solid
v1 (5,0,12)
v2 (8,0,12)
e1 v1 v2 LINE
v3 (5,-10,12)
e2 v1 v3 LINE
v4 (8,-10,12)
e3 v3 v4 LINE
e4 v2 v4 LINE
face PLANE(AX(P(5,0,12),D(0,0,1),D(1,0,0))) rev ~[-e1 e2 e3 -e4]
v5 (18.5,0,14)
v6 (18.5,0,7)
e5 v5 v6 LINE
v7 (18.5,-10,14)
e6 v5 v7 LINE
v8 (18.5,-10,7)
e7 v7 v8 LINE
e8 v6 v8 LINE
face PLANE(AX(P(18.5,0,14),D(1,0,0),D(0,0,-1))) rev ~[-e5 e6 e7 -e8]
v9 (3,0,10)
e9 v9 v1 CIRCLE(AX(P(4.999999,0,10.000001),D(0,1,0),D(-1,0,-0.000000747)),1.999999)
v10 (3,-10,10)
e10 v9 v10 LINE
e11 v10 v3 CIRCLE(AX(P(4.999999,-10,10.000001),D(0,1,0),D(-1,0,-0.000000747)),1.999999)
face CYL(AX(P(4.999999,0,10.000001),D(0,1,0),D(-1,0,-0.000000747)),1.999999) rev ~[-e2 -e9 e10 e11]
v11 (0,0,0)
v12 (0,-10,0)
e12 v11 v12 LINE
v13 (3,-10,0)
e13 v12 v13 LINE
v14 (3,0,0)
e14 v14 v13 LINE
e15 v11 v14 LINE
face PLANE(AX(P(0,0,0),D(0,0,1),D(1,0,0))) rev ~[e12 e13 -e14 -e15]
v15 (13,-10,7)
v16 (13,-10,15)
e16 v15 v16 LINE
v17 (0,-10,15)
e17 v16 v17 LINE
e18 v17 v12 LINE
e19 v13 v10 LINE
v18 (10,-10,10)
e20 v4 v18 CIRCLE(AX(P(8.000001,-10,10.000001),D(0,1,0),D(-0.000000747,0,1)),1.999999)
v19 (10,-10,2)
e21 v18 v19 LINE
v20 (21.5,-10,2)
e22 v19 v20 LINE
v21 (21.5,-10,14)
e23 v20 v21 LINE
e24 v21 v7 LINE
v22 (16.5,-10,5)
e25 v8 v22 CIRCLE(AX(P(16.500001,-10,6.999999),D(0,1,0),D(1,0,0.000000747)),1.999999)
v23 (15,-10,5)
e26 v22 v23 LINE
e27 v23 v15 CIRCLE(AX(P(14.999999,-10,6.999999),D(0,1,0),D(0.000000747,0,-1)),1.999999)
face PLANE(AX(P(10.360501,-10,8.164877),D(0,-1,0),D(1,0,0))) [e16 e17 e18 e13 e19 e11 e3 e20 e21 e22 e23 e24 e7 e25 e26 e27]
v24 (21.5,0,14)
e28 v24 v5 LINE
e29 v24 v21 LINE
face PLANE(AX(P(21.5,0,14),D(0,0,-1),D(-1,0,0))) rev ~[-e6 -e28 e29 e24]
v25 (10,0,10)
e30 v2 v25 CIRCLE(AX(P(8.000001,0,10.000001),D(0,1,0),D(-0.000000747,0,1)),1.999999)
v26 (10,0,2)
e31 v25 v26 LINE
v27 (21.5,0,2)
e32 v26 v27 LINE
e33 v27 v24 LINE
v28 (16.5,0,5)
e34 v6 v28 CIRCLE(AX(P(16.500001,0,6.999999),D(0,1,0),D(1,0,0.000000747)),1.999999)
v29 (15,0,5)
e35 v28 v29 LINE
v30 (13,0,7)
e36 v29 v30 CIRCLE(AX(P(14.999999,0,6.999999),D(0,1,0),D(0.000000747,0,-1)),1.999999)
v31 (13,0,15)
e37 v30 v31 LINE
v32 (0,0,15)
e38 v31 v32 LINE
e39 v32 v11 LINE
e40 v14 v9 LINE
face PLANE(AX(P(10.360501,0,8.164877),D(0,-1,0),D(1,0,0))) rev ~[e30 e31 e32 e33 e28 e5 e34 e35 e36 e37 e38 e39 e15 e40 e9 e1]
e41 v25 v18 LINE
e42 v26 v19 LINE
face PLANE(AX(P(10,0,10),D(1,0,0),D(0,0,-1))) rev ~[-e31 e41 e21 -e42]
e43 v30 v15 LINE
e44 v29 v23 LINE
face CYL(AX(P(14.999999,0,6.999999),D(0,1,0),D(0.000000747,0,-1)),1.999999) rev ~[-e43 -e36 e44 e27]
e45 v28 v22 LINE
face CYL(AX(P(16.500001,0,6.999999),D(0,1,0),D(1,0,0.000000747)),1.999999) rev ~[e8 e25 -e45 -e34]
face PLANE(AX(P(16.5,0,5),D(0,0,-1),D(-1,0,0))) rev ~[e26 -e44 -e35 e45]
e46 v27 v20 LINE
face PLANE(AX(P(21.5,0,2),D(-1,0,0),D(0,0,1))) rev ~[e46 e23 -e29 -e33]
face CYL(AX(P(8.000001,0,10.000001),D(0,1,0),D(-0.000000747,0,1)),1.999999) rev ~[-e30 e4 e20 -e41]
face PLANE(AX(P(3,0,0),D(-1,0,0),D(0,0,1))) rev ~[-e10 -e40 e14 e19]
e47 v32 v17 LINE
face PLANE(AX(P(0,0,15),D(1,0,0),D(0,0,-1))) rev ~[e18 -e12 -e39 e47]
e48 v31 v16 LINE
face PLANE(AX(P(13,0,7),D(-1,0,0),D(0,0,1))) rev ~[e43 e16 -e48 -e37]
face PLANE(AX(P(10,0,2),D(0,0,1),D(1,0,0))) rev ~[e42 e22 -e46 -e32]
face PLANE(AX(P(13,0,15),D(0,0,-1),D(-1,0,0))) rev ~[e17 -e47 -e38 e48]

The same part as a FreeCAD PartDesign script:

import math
import FreeCAD as App
import Part
import Sketcher
from FreeCAD import Vector

doc = App.newDocument("Part")
body = doc.addObject("PartDesign::Body", "Body")

sketch1 = body.newObject("Sketcher::SketchObject", "Sketch")
sketch1.AttachmentSupport = (doc.getObject("XZ_Plane"), [""])
sketch1.MapMode = "FlatFace"
sketch1.addGeometry(Part.LineSegment(Vector(0, 15, 0), Vector(0, 0, 0)), False)
sketch1.addGeometry(Part.LineSegment(Vector(0, 0, 0), Vector(3, 0, 0)), False)
sketch1.addGeometry(Part.LineSegment(Vector(3, 0, 0), Vector(3, 10, 0)), False)
sketch1.addGeometry(Part.ArcOfCircle(Part.Circle(Vector(4.999999, 10.000001, 0), Vector(0, 0, 1), 1.999999), math.radians(89.999957), math.radians(180.000043)), False)
sketch1.addGeometry(Part.LineSegment(Vector(5, 12, 0), Vector(8, 12, 0)), False)
sketch1.addGeometry(Part.ArcOfCircle(Part.Circle(Vector(8.000001, 10.000001, 0), Vector(0, 0, 1), 1.999999), math.radians(-0.000043), math.radians(90.000043)), False)
sketch1.addGeometry(Part.LineSegment(Vector(10, 10, 0), Vector(10, 2, 0)), False)
sketch1.addGeometry(Part.LineSegment(Vector(10, 2, 0), Vector(21.5, 2, 0)), False)
sketch1.addGeometry(Part.LineSegment(Vector(21.5, 2, 0), Vector(21.5, 14, 0)), False)
sketch1.addGeometry(Part.LineSegment(Vector(21.5, 14, 0), Vector(18.5, 14, 0)), False)
sketch1.addGeometry(Part.LineSegment(Vector(18.5, 14, 0), Vector(18.5, 7, 0)), False)
sketch1.addGeometry(Part.ArcOfCircle(Part.Circle(Vector(16.500001, 6.999999, 0), Vector(0, 0, 1), 1.999999), math.radians(-90.000043), math.radians(0.000043)), False)
sketch1.addGeometry(Part.LineSegment(Vector(16.5, 5, 0), Vector(15, 5, 0)), False)
sketch1.addGeometry(Part.ArcOfCircle(Part.Circle(Vector(14.999999, 6.999999, 0), Vector(0, 0, 1), 1.999999), math.radians(179.999957), math.radians(270.000043)), False)
sketch1.addGeometry(Part.LineSegment(Vector(13, 7, 0), Vector(13, 15, 0)), False)
sketch1.addGeometry(Part.LineSegment(Vector(13, 15, 0), Vector(0, 15, 0)), False)
sketch1.addConstraint(Sketcher.Constraint("Coincident", 0, 2, 1, 1))
sketch1.addConstraint(Sketcher.Constraint("Coincident", 1, 2, 2, 1))
sketch1.addConstraint(Sketcher.Constraint("Tangent", 2, 2, 3, 2))
sketch1.addConstraint(Sketcher.Constraint("Tangent", 3, 1, 4, 1))
sketch1.addConstraint(Sketcher.Constraint("Tangent", 4, 2, 5, 2))
sketch1.addConstraint(Sketcher.Constraint("Tangent", 5, 1, 6, 1))
sketch1.addConstraint(Sketcher.Constraint("Coincident", 6, 2, 7, 1))
sketch1.addConstraint(Sketcher.Constraint("Coincident", 7, 2, 8, 1))
sketch1.addConstraint(Sketcher.Constraint("Coincident", 8, 2, 9, 1))
sketch1.addConstraint(Sketcher.Constraint("Coincident", 9, 2, 10, 1))
sketch1.addConstraint(Sketcher.Constraint("Tangent", 10, 2, 11, 2))
sketch1.addConstraint(Sketcher.Constraint("Tangent", 11, 1, 12, 1))
sketch1.addConstraint(Sketcher.Constraint("Tangent", 12, 2, 13, 2))
sketch1.addConstraint(Sketcher.Constraint("Tangent", 13, 1, 14, 1))
sketch1.addConstraint(Sketcher.Constraint("Coincident", 14, 2, 15, 1))
sketch1.addConstraint(Sketcher.Constraint("Coincident", 15, 2, 0, 1))
sketch1.addConstraint(Sketcher.Constraint("Vertical", 0))
sketch1.addConstraint(Sketcher.Constraint("Horizontal", 1))
sketch1.addConstraint(Sketcher.Constraint("Vertical", 2))
sketch1.addConstraint(Sketcher.Constraint("Horizontal", 4))
sketch1.addConstraint(Sketcher.Constraint("Vertical", 6))
sketch1.addConstraint(Sketcher.Constraint("Horizontal", 7))
sketch1.addConstraint(Sketcher.Constraint("Vertical", 8))
sketch1.addConstraint(Sketcher.Constraint("Horizontal", 9))
sketch1.addConstraint(Sketcher.Constraint("Vertical", 10))
sketch1.addConstraint(Sketcher.Constraint("Horizontal", 12))
sketch1.addConstraint(Sketcher.Constraint("Vertical", 14))
sketch1.addConstraint(Sketcher.Constraint("Horizontal", 15))
sketch1.addConstraint(Sketcher.Constraint("Coincident", 0, 2, -1, 1))
sketch1.addConstraint(Sketcher.Constraint("Equal", 3, 5))
sketch1.addConstraint(Sketcher.Constraint("Equal", 5, 11))
sketch1.addConstraint(Sketcher.Constraint("Equal", 11, 13))
sketch1.addConstraint(Sketcher.Constraint("Equal", 1, 4))
sketch1.addConstraint(Sketcher.Constraint("Equal", 4, 9))
sketch1.addConstraint(Sketcher.Constraint("Equal", 6, 14))
sketch1.addConstraint(Sketcher.Constraint("Radius", 3, 1.999999))
sketch1.addConstraint(Sketcher.Constraint("DistanceX", 1, 1, 1, 2, 3.0))
sketch1.addConstraint(Sketcher.Constraint("DistanceX", 15, 2, 15, 1, 13.0))
sketch1.addConstraint(Sketcher.Constraint("DistanceY", 0, 2, 0, 1, 15.0))
sketch1.addConstraint(Sketcher.Constraint("DistanceY", 2, 1, 2, 2, 10.0))
sketch1.addConstraint(Sketcher.Constraint("DistanceY", 6, 2, 6, 1, 8.0))
sketch1.addConstraint(Sketcher.Constraint("DistanceY", 8, 1, 8, 2, 12.0))
sketch1.addConstraint(Sketcher.Constraint("DistanceX", 7, 1, 7, 2, 11.5))
pad1 = body.newObject("PartDesign::Pad", "Pad")
pad1.Profile = sketch1
pad1.Length = 10

doc.recompute()
